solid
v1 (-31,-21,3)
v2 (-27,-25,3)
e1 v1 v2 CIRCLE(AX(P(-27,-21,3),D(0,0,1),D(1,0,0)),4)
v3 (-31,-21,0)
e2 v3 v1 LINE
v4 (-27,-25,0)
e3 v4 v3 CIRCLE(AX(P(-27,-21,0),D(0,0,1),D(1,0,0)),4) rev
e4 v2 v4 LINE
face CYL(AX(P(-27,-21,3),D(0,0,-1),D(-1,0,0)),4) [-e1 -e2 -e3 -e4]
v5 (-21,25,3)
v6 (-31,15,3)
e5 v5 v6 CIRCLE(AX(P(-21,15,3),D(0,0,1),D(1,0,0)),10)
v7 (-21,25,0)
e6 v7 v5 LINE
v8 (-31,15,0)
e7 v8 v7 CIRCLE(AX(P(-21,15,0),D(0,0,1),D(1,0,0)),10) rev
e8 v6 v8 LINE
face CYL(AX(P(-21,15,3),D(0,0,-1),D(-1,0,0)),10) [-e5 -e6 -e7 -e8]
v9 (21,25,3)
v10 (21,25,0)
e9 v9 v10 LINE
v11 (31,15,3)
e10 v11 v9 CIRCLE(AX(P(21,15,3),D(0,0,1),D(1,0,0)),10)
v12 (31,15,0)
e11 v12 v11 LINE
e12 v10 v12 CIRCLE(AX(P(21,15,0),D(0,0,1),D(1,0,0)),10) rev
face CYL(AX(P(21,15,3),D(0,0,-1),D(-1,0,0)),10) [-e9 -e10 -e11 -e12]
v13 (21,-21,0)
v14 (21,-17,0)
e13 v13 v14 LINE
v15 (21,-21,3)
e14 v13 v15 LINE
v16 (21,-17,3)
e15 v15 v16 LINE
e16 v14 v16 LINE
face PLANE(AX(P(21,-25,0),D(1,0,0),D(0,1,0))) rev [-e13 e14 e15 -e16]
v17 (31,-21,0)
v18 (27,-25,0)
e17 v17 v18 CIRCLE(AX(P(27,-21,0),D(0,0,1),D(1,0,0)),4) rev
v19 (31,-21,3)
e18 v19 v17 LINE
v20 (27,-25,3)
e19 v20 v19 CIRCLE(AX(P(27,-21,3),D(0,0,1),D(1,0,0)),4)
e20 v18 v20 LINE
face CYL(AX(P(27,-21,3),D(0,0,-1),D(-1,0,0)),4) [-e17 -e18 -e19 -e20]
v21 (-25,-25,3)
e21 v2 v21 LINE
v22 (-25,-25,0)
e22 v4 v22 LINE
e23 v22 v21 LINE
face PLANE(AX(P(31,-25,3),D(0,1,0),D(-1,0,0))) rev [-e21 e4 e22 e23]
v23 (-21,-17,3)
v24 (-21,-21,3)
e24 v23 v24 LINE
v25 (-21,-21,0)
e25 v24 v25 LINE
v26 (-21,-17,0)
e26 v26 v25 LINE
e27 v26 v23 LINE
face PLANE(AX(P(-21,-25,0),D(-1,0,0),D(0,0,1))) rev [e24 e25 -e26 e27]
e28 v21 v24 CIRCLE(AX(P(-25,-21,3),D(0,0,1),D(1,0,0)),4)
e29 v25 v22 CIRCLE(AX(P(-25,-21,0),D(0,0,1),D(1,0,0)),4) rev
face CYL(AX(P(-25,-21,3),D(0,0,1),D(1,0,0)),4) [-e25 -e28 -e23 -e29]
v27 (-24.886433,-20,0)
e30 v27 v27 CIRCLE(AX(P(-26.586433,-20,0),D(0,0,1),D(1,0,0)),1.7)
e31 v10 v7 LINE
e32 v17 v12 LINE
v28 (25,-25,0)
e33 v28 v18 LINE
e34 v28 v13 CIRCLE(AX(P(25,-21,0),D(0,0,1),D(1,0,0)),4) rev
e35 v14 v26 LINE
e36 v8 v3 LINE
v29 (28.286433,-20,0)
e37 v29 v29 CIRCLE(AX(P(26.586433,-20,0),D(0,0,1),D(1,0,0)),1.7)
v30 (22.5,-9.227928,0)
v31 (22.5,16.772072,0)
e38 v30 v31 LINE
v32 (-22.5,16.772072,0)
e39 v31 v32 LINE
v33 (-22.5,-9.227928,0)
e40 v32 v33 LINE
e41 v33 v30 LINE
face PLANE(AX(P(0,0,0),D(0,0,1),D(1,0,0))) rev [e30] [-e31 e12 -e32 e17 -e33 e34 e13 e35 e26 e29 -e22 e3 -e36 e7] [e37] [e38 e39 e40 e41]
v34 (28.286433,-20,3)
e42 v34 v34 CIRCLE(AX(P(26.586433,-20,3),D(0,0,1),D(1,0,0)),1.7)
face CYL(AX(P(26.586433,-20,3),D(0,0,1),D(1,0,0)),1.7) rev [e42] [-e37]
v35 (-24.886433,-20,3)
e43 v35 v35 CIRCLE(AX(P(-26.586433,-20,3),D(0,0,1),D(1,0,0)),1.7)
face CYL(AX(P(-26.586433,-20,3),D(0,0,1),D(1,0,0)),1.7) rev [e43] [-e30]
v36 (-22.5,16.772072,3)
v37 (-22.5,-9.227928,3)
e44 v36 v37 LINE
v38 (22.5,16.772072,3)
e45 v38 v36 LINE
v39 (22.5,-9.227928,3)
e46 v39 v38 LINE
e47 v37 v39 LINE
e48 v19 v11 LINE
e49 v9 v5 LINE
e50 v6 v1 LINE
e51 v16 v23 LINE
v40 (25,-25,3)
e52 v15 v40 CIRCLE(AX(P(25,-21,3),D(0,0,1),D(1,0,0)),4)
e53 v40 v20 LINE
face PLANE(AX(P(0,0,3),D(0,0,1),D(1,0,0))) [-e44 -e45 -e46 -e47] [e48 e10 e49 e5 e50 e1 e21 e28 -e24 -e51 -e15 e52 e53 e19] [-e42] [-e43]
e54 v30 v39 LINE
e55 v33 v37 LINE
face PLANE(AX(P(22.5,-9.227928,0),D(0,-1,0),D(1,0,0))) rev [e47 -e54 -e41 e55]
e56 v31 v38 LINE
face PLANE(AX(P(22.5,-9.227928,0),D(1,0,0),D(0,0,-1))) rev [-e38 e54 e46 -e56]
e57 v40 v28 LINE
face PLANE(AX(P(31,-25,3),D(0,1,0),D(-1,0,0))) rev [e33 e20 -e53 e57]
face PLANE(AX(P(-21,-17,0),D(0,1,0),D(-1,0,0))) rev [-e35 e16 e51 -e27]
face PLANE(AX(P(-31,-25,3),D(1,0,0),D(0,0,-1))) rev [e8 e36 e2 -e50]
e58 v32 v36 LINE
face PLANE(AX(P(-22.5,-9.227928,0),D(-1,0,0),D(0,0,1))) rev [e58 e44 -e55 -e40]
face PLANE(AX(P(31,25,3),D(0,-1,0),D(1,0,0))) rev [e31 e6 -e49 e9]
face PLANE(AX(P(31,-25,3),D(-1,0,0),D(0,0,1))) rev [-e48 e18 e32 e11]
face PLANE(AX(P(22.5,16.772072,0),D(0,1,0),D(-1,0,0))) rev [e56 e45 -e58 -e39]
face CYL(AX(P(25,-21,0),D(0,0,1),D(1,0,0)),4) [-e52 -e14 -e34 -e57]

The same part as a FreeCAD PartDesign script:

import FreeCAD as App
import Part
import Sketcher

V = App.Vector
Q = App.Units.Quantity


def edges_at(feature, points):
    """Names of the edges that pass closest to the given points."""
    edges = feature.Shape.Edges
    near = lambda p: min(range(len(edges)), key=lambda i: edges[i].distToShape(Part.Vertex(*p))[0])
    return sorted({f"Edge{near(p) + 1}" for p in points})

doc = App.newDocument("Part")
body = doc.addObject("PartDesign::Body", "Body")

# Sketch on XY plane
sketch1 = doc.addObject("Sketcher::SketchObject", "Sketch")
body.addObject(sketch1)
sketch1.AttachmentSupport = (doc.XY_Plane, [""])
sketch1.MapMode = "FlatFace"
sketch1.addGeometry([
    Part.LineSegment(V(-31, 25, 0), V(-31, -25, 0)),
    Part.LineSegment(V(-31, -25, 0), V(31, -25, 0)),
    Part.LineSegment(V(31, -25, 0), V(31, 25, 0)),
    Part.LineSegment(V(31, 25, 0), V(-31, 25, 0)),
], False)
sketch1.addConstraint([
    Sketcher.Constraint("Coincident", 0, 2, 1, 1),
    Sketcher.Constraint("Coincident", 1, 2, 2, 1),
    Sketcher.Constraint("Coincident", 2, 2, 3, 1),
    Sketcher.Constraint("Coincident", 3, 2, 0, 1),
    Sketcher.Constraint("Vertical", 0),
    Sketcher.Constraint("Horizontal", 1),
    Sketcher.Constraint("Vertical", 2),
    Sketcher.Constraint("Horizontal", 3),
    Sketcher.Constraint("Symmetric", 0, 2, 2, 2, -1, 1),
    Sketcher.Constraint("DistanceX", 1, 1, 1, 2, Q("62 mm")),
    Sketcher.Constraint("DistanceY", 0, 2, 0, 1, Q("50 mm")),
])
pad1 = doc.addObject("PartDesign::Pad", "Pad")
body.addObject(pad1)
pad1.Profile = sketch1
pad1.Length = 3

# Sketch on XY plane
sketch2 = doc.addObject("Sketcher::SketchObject", "Sketch001")
body.addObject(sketch2)
sketch2.AttachmentSupport = (doc.XY_Plane, [""])
sketch2.MapMode = "FlatFace"
sketch2.AttachmentOffset = App.Placement(V(0, 0, 3), App.Rotation())
sketch2.addGeometry([
    Part.Circle(V(-26.586433, -20, 0), V(0, 0, 1), 1.7),
    Part.Circle(V(26.586433, -20, 0), V(0, 0, 1), 1.7),
], False)
sketch2.addConstraint([
    Sketcher.Constraint("Equal", 0, 1),
    Sketcher.Constraint("Symmetric", 0, 3, 1, 3, -2),
    Sketcher.Constraint("Diameter", 0, Q("3.4 mm")),
    Sketcher.Constraint("DistanceY", 0, 3, -1, 1, Q("20 mm")),
    Sketcher.Constraint("DistanceX", 0, 3, -1, 1, Q("26.586433 mm")),
])
doc.recompute()
hole = doc.addObject("PartDesign::Hole", "Hole")
body.addObject(hole)
hole.Profile = sketch2
hole.ThreadType = "None"
hole.Diameter = 3.4
hole.DepthType = "ThroughAll"

# Sketch on XY plane
sketch3 = doc.addObject("Sketcher::SketchObject", "Sketch002")
body.addObject(sketch3)
sketch3.AttachmentSupport = (doc.XY_Plane, [""])
sketch3.MapMode = "FlatFace"
sketch3.AttachmentOffset = App.Placement(V(0, 0, 3), App.Rotation())
sketch3.addGeometry([
    Part.LineSegment(V(-21, -17, 0), V(-21, -25, 0)),
    Part.LineSegment(V(-21, -25, 0), V(21, -25, 0)),
    Part.LineSegment(V(21, -25, 0), V(21, -17, 0)),
    Part.LineSegment(V(21, -17, 0), V(-21, -17, 0)),
], False)
sketch3.addConstraint([
    Sketcher.Constraint("Coincident", 0, 2, 1, 1),
    Sketcher.Constraint("Coincident", 1, 2, 2, 1),
    Sketcher.Constraint("Coincident", 2, 2, 3, 1),
    Sketcher.Constraint("Coincident", 3, 2, 0, 1),
    Sketcher.Constraint("Vertical", 0),
    Sketcher.Constraint("Horizontal", 1),
    Sketcher.Constraint("Vertical", 2),
    Sketcher.Constraint("Horizontal", 3),
    Sketcher.Constraint("DistanceX", 1, 1, 1, 2, Q("42 mm")),
    Sketcher.Constraint("DistanceY", 0, 2, 0, 1, Q("8 mm")),
    Sketcher.Constraint("DistanceX", 0, 2, -1, 1, Q("21 mm")),
    Sketcher.Constraint("DistanceY", 0, 2, -1, 1, Q("25 mm")),
])
pocket1 = doc.addObject("PartDesign::Pocket", "Pocket")
body.addObject(pocket1)
pocket1.Profile = sketch3
pocket1.Length = 3

# Sketch on XY plane
sketch4 = doc.addObject("Sketcher::SketchObject", "Sketch003")
body.addObject(sketch4)
sketch4.AttachmentSupport = (doc.XY_Plane, [""])
sketch4.MapMode = "FlatFace"
sketch4.AttachmentOffset = App.Placement(V(0, 0, 3), App.Rotation())
sketch4.addGeometry([
    Part.LineSegment(V(-22.5, 16.772072, 0), V(-22.5, -9.227928, 0)),
    Part.LineSegment(V(-22.5, -9.227928, 0), V(22.5, -9.227928, 0)),
    Part.LineSegment(V(22.5, -9.227928, 0), V(22.5, 16.772072, 0)),
    Part.LineSegment(V(22.5, 16.772072, 0), V(-22.5, 16.772072, 0)),
], False)
sketch4.addConstraint([
    Sketcher.Constraint("Coincident", 0, 2, 1, 1),
    Sketcher.Constraint("Coincident", 1, 2, 2, 1),
    Sketcher.Constraint("Coincident", 2, 2, 3, 1),
    Sketcher.Constraint("Coincident", 3, 2, 0, 1),
    Sketcher.Constraint("Vertical", 0),
    Sketcher.Constraint("Horizontal", 1),
    Sketcher.Constraint("Vertical", 2),
    Sketcher.Constraint("Horizontal", 3),
    Sketcher.Constraint("DistanceX", 1, 1, 1, 2, Q("45 mm")),
    Sketcher.Constraint("DistanceY", 0, 2, 0, 1, Q("26 mm")),
    Sketcher.Constraint("DistanceX", 0, 2, -1, 1, Q("22.5 mm")),
    Sketcher.Constraint("DistanceY", 0, 2, -1, 1, Q("9.227928 mm")),
])
pocket2 = doc.addObject("PartDesign::Pocket", "Pocket001")
body.addObject(pocket2)
pocket2.Profile = sketch4
pocket2.Length = 3
doc.recompute()

fillet = doc.addObject("PartDesign::Fillet", "Fillet")
body.addObject(fillet)
fillet.Base = (pocket2, edges_at(pocket2, [(-31, 25, 1.5), (31, 25, 1.5)]))
fillet.Radius = 10
doc.recompute()

fillet2 = doc.addObject("PartDesign::Fillet", "Fillet001")
body.addObject(fillet2)
fillet2.Base = (fillet, edges_at(fillet, [
    (-21, -25, 1.5),
    (21, -25, 1.5),
    (31, -25, 1.5),
    (-31, -25, 1.5),
]))
fillet2.Radius = 4

doc.recompute()
